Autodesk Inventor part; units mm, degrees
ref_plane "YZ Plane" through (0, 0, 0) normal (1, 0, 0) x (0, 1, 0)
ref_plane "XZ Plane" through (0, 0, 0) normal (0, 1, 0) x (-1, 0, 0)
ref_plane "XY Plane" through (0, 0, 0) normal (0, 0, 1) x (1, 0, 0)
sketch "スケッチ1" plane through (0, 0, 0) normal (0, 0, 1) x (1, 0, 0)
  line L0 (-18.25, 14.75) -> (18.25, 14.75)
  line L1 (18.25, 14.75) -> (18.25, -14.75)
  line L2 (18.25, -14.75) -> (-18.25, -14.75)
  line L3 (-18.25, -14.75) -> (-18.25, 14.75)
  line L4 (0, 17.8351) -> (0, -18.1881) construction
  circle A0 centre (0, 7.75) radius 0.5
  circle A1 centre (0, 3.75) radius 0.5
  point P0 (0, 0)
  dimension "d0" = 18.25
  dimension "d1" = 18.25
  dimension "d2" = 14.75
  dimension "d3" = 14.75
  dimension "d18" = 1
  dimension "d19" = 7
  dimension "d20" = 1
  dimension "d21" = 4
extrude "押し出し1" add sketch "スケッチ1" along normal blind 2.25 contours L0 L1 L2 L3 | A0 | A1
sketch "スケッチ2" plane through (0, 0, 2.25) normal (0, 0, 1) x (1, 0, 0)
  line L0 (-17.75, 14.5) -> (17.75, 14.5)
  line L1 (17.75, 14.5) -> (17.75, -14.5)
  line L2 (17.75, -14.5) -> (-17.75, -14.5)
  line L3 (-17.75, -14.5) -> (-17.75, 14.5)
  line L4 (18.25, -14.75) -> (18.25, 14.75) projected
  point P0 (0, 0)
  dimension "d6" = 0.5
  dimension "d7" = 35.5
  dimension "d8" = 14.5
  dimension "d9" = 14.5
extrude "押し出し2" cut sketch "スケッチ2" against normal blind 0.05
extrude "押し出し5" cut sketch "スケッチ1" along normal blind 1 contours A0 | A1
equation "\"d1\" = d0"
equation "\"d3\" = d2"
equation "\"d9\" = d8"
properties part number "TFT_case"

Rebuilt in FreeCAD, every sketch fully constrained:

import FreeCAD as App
import Part
import Sketcher

V = App.Vector

doc = App.newDocument("Part")
body = doc.addObject("PartDesign::Body", "Body")

sketch1 = body.newObject("Sketcher::SketchObject", "Sketch")
sketch1.AttachmentSupport = (doc.getObject("XY_Plane"), [""])
sketch1.MapMode = "FlatFace"
sketch1.addGeometry([
    Part.LineSegment(V(18, 15, 0), V(-18, 15, 0)),
    Part.LineSegment(V(-18, 15, 0), V(-18, -15, 0)),
    Part.LineSegment(V(-18, -15, 0), V(18, -15, 0)),
    Part.LineSegment(V(18, -15, 0), V(18, 15, 0)),
], False)
sketch1.addConstraint([
    Sketcher.Constraint("Coincident", 0, 2, 1, 1),
    Sketcher.Constraint("Coincident", 1, 2, 2, 1),
    Sketcher.Constraint("Coincident", 2, 2, 3, 1),
    Sketcher.Constraint("Coincident", 3, 2, 0, 1),
    Sketcher.Constraint("Horizontal", 0),
    Sketcher.Constraint("Vertical", 1),
    Sketcher.Constraint("Horizontal", 2),
    Sketcher.Constraint("Vertical", 3),
    Sketcher.Constraint("Symmetric", 0, 2, 2, 2, -1, 1),
    Sketcher.Constraint("DistanceX", 0, 2, -1, 1, 18.25),
    Sketcher.Constraint("DistanceY", -1, 1, 0, 2, 14.75),
])
pad1 = body.newObject("PartDesign::Pad", "Pad")
pad1.Profile = sketch1
pad1.Length = 2.25

sketch2 = body.newObject("Sketcher::SketchObject", "Sketch001")
sketch2.AttachmentSupport = (doc.getObject("XY_Plane"), [""])
sketch2.MapMode = "FlatFace"
sketch2.AttachmentOffset = App.Placement(V(0, 0, 2.25), App.Rotation())
sketch2.addGeometry([
    Part.LineSegment(V(18, 14, 0), V(-18, 14, 0)),
    Part.LineSegment(V(-18, 14, 0), V(-18, -14, 0)),
    Part.LineSegment(V(-18, -14, 0), V(18, -14, 0)),
    Part.LineSegment(V(18, -14, 0), V(18, 14, 0)),
], False)
sketch2.addConstraint([
    Sketcher.Constraint("Coincident", 0, 2, 1, 1),
    Sketcher.Constraint("Coincident", 1, 2, 2, 1),
    Sketcher.Constraint("Coincident", 2, 2, 3, 1),
    Sketcher.Constraint("Coincident", 3, 2, 0, 1),
    Sketcher.Constraint("Horizontal", 0),
    Sketcher.Constraint("Vertical", 1),
    Sketcher.Constraint("Horizontal", 2),
    Sketcher.Constraint("Vertical", 3),
    Sketcher.Constraint("Symmetric", 0, 2, 2, 2, -1, 1),
    Sketcher.Constraint("DistanceX", 0, 2, 0, 1, 35.5),
    Sketcher.Constraint("DistanceY", -1, 1, 0, 2, 14.5),
])
pocket1 = body.newObject("PartDesign::Pocket", "Pocket")
pocket1.Profile = sketch2
pocket1.Length = 0.05

sketch3 = body.newObject("Sketcher::SketchObject", "Sketch002")
sketch3.AttachmentSupport = (doc.getObject("XY_Plane"), [""])
sketch3.MapMode = "FlatFace"
sketch3.addGeometry([
    Part.Circle(V(0, 7.8, 0), V(0, 0, 1), 0.5),
    Part.Circle(V(0, 3.8, 0), V(0, 0, 1), 0.5),
], False)
sketch3.addConstraint([
    Sketcher.Constraint("Equal", 0, 1),
    Sketcher.Constraint("PointOnObject", 0, 3, -2),
    Sketcher.Constraint("PointOnObject", 1, 3, -2),
    Sketcher.Constraint("Diameter", 0, 1.0),
    Sketcher.Constraint("DistanceY", 1, 3, 0, 3, 4.0),
    Sketcher.Constraint("DistanceY", -1, 1, 0, 3, 7.75),
])
pocket2 = body.newObject("PartDesign::Pocket", "Pocket001")
pocket2.Profile = sketch3
pocket2.Length = 1
pocket2.Reversed = True

doc.recompute()
